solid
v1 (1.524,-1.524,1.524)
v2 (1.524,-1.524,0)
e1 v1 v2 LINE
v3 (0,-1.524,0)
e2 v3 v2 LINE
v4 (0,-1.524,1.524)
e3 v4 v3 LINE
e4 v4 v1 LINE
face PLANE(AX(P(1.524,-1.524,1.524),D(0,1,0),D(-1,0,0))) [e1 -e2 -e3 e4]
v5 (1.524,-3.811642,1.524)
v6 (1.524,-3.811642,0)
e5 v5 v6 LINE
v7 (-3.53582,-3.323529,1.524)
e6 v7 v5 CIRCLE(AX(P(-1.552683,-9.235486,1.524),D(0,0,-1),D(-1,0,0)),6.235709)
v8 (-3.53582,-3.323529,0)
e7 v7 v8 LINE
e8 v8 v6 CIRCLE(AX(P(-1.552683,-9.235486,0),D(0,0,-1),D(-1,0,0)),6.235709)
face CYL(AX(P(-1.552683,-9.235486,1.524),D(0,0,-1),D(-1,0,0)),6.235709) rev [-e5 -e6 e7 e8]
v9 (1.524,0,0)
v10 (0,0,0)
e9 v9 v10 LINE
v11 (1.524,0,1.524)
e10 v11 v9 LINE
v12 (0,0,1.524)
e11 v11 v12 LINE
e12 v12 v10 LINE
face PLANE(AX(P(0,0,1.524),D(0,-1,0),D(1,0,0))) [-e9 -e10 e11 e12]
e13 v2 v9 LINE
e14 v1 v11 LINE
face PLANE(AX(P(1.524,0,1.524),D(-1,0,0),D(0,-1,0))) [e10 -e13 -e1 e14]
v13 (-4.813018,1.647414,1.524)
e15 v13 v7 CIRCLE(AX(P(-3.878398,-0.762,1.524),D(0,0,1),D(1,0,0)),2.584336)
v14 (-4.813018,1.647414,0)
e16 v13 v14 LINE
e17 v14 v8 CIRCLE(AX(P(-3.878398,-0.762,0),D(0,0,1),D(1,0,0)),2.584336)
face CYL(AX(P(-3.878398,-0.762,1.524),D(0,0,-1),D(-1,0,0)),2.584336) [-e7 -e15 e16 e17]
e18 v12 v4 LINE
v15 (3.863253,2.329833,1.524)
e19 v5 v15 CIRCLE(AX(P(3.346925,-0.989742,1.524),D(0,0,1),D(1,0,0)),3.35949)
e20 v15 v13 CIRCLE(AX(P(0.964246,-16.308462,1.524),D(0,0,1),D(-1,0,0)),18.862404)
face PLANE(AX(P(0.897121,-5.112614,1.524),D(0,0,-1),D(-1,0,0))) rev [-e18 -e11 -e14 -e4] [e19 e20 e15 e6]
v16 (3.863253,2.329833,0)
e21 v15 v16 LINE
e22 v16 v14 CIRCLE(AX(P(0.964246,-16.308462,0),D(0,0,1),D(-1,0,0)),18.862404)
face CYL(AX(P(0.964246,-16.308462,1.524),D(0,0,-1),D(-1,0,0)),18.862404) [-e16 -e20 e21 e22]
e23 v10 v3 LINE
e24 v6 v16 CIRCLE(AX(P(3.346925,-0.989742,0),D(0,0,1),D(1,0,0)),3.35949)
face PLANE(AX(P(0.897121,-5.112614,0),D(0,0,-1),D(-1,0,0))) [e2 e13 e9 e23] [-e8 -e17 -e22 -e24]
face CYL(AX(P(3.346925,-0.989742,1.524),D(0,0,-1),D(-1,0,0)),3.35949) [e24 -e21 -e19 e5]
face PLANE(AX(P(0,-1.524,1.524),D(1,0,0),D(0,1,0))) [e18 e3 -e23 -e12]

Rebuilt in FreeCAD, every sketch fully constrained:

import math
import FreeCAD as App
import Part
import Sketcher
from FreeCAD import Vector
Q = App.Units.Quantity


def add_polygon(sketch, points):
    """Adds a closed chain of lines whose ends are joined by coincident constraints."""
    first, n = sketch.GeometryCount, len(points)
    for a, b in zip(points, points[1:] + points[:1]):
        sketch.addGeometry(Part.LineSegment(App.Vector(*a, 0), App.Vector(*b, 0)), False)
    for i in range(n):
        sketch.addConstraint(Sketcher.Constraint("Coincident", first + i, 2, first + (i + 1) % n, 1))

doc = App.newDocument("Part")
body = doc.addObject("PartDesign::Body", "Body")

# Sketch on XY plane
sketch1 = body.newObject("Sketcher::SketchObject", "Sketch")
sketch1.AttachmentSupport = (doc.getObject("XY_Plane"), [""])
sketch1.MapMode = "FlatFace"
sketch1.addGeometry(Part.ArcOfCircle(Part.Circle(Vector(-3.878398, -0.762, 0), Vector(0, 0, 1), 2.584336), math.radians(111.201439), math.radians(277.617514)), False)  # 0
sketch1.addGeometry(Part.ArcOfCircle(Part.Circle(Vector(-1.552683, -9.235486, 0), Vector(0, 0, 1), 6.235709), math.radians(60.435866), math.radians(108.543777)), False)  # 1
sketch1.addGeometry(Part.ArcOfCircle(Part.Circle(Vector(3.346925, -0.989742, 0), Vector(0, 0, 1), 3.35949), math.radians(-122.862143), math.radians(81.159036)), False)  # 2
sketch1.addGeometry(Part.ArcOfCircle(Part.Circle(Vector(0.964246, -16.308462, 0), Vector(0, 0, 1), 18.862404), math.radians(81.159036), math.radians(107.835467)), False)  # 3
add_polygon(sketch1, [(1.524, -1.524), (0, -1.524), (0, 0), (1.524, 0)])  # lines 4-7
sketch1.addConstraint([
    Sketcher.Constraint("Coincident", 0, 2, 1, 2),
    Sketcher.Constraint("Coincident", 1, 1, 2, 1),
    Sketcher.Constraint("Tangent", 2, 2, 3, 1),
    Sketcher.Constraint("Coincident", 3, 2, 0, 1),
    Sketcher.Constraint("Horizontal", 4),
    Sketcher.Constraint("Vertical", 5),
    Sketcher.Constraint("Horizontal", 6),
    Sketcher.Constraint("Vertical", 7),
    Sketcher.Constraint("Coincident", 5, 2, -1, 1),
    Sketcher.Constraint("Vertical", 1, 1, 6, 2),
    Sketcher.Constraint("Equal", 6, 5),
    Sketcher.Constraint("DistanceX", 4, 2, 4, 1, Q("0.06 in")),
    Sketcher.Constraint("DistanceY", 0, 3, -1, 1, Q("0.03 in")),
    Sketcher.Constraint("Radius", 1, Q("6.235709 mm")),
    Sketcher.Constraint("Radius", 2, Q("3.35949 mm")),
    Sketcher.Constraint("Radius", 0, Q("2.584336 mm")),
    Sketcher.Constraint("Radius", 3, Q("18.862404 mm")),
    Sketcher.Constraint("DistanceX", 0, 3, -1, 1, Q("3.878398 mm")),
    Sketcher.Constraint("DistanceY", 1, 1, 2, 3, Q("2.8219 mm")),
    Sketcher.Constraint("DistanceX", 0, 2, -1, 1, Q("3.53582 mm")),
    Sketcher.Constraint("DistanceY", 1, 1, -1, 1, Q("3.811642 mm")),
    Sketcher.Constraint("DistanceX", 3, 2, -1, 1, Q("4.813018 mm")),
])
pad1 = body.newObject("PartDesign::Pad", "Pad")
pad1.Profile = sketch1
pad1.Length = Q("0.06 in")

doc.recompute()
